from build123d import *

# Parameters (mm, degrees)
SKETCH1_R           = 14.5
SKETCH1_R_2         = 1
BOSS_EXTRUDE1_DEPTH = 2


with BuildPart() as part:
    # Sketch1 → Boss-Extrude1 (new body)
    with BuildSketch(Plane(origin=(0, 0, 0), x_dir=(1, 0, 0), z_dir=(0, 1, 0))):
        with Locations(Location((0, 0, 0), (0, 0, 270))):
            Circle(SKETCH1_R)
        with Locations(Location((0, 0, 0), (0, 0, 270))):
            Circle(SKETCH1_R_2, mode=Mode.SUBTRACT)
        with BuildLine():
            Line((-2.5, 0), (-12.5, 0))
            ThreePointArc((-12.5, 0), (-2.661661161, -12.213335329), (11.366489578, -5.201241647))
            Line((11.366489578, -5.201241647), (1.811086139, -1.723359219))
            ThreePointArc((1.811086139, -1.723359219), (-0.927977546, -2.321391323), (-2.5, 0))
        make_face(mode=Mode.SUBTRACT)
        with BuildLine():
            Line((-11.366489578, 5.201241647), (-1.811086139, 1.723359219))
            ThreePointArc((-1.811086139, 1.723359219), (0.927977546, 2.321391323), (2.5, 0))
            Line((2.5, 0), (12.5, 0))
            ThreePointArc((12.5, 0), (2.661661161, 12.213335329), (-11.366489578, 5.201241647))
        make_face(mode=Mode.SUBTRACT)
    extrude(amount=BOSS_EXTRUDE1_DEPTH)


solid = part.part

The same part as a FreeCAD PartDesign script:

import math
import FreeCAD as App
import Part
import Sketcher
Q = App.Units.Quantity

doc = App.newDocument("Part")
body = doc.addObject("PartDesign::Body", "Body")

# Sketch on XZ plane
sketch1 = doc.addObject("Sketcher::SketchObject", "Sketch")
body.addObject(sketch1)
sketch1.AttachmentSupport = (doc.XZ_Plane, [""])
sketch1.MapMode = "FlatFace"
sketch1.addGeometry([
    Part.Circle(App.Vector(0, 0, 0), App.Vector(0, 0, 1), 14.5),  # 0
    Part.LineSegment(App.Vector(-12.5, 0, 0), App.Vector(-2.5, 0, 0)),  # 1
    Part.ArcOfCircle(Part.Circle(App.Vector(0, 0, 0), App.Vector(0, 0, 1), 2.5), math.radians(44), math.radians(180)),  # 2
    Part.LineSegment(App.Vector(1.8, 1.7, 0), App.Vector(11.4, 5.2, 0)),  # 3
    Part.ArcOfCircle(Part.Circle(App.Vector(0, 0, 0), App.Vector(0, 0, 1), 12.5), math.radians(25), math.radians(180)),  # 4
    Part.LineSegment(App.Vector(-1.8, -1.7, 0), App.Vector(-11.4, -5.2, 0)),  # 5
    Part.ArcOfCircle(Part.Circle(App.Vector(0, 0, 0), App.Vector(0, 0, 1), 12.5), math.radians(-155), math.radians(0)),  # 6
    Part.LineSegment(App.Vector(12.5, 0, 0), App.Vector(2.5, 0, 0)),  # 7
    Part.ArcOfCircle(Part.Circle(App.Vector(0, 0, 0), App.Vector(0, 0, 1), 2.5), math.radians(-136), math.radians(0)),  # 8
    Part.Circle(App.Vector(0, 0, 0), App.Vector(0, 0, 1), 1),  # 9
], False)
sketch1.addConstraint([
    Sketcher.Constraint("Coincident", 1, 2, 2, 2),
    Sketcher.Constraint("Coincident", 2, 1, 3, 1),
    Sketcher.Constraint("Coincident", 3, 2, 4, 1),
    Sketcher.Constraint("Coincident", 4, 2, 1, 1),
    Sketcher.Constraint("Coincident", 5, 2, 6, 1),
    Sketcher.Constraint("Coincident", 6, 2, 7, 1),
    Sketcher.Constraint("Coincident", 7, 2, 8, 2),
    Sketcher.Constraint("Coincident", 8, 1, 5, 1),
    Sketcher.Constraint("Horizontal", 1),
    Sketcher.Constraint("Horizontal", 7),
    Sketcher.Constraint("Coincident", 0, 3, -1, 1),
    Sketcher.Constraint("Coincident", 2, 3, -1, 1),
    Sketcher.Constraint("Coincident", 4, 3, -1, 1),
    Sketcher.Constraint("Coincident", 6, 3, -1, 1),
    Sketcher.Constraint("Coincident", 8, 3, -1, 1),
    Sketcher.Constraint("Coincident", 9, 3, -1, 1),
    Sketcher.Constraint("Equal", 4, 6),
    Sketcher.Constraint("Equal", 2, 8),
    Sketcher.Constraint("PointOnObject", 1, 2, -1),
    Sketcher.Constraint("PointOnObject", 6, 2, -1),
    Sketcher.Constraint("Parallel", 3, 5),
    Sketcher.Constraint("Equal", 3, 5),
    Sketcher.Constraint("Diameter", 0, 29.0),
    Sketcher.Constraint("Diameter", 9, 2.0),
    Sketcher.Constraint("Radius", 2, 2.5),
    Sketcher.Constraint("Radius", 4, 12.5),
    Sketcher.Constraint("Angle", 3, Q("20 deg")),
    Sketcher.Constraint("DistanceY", -1, 1, 2, 1, 1.723359),
])
pad1 = doc.addObject("PartDesign::Pad", "Pad")
body.addObject(pad1)
pad1.Profile = sketch1
pad1.Length = 2
pad1.Reversed = True

doc.recompute()
